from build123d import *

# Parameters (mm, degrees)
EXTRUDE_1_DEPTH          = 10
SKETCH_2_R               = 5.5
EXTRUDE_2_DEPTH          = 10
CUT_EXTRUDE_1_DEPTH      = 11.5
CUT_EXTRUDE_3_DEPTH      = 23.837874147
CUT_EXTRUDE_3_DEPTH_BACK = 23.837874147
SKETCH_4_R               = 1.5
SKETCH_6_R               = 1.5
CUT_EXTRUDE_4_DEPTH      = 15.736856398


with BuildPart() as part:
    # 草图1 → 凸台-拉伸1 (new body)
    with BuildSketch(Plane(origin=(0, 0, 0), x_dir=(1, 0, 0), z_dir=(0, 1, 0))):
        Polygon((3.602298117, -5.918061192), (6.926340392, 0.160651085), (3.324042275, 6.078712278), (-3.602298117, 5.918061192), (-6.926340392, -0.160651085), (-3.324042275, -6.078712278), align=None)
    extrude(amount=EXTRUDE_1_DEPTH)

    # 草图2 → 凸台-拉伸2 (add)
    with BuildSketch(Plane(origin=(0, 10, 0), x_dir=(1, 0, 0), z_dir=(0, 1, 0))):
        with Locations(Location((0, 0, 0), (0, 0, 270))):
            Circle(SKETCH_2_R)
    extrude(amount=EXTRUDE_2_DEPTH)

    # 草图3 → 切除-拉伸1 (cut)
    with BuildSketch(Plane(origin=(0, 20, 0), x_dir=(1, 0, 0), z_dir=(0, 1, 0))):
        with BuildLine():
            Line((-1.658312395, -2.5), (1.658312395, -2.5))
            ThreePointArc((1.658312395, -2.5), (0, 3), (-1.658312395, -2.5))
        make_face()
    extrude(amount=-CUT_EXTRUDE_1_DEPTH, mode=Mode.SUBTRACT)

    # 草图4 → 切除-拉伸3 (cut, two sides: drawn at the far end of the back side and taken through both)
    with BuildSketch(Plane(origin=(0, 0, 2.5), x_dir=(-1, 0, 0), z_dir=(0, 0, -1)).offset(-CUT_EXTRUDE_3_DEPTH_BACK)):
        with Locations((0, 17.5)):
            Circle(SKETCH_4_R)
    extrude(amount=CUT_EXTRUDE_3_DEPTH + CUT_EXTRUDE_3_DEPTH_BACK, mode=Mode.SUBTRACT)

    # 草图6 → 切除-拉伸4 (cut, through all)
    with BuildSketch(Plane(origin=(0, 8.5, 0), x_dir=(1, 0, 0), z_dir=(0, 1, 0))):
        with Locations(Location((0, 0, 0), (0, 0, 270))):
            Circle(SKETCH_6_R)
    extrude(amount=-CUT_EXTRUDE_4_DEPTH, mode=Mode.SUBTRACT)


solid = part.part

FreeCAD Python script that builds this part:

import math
import FreeCAD as App
import Part
import Sketcher
from FreeCAD import Vector


def add_polygon(sketch, points):
    """Adds a closed chain of lines whose ends are joined by coincident constraints."""
    first, n = sketch.GeometryCount, len(points)
    for a, b in zip(points, points[1:] + points[:1]):
        sketch.addGeometry(Part.LineSegment(App.Vector(*a, 0), App.Vector(*b, 0)), False)
    for i in range(n):
        sketch.addConstraint(Sketcher.Constraint("Coincident", first + i, 2, first + (i + 1) % n, 1))

doc = App.newDocument("Part")
params = doc.addObject("Spreadsheet::Sheet", "Params")
for row, (alias, value) in enumerate([
    ("pad1_length", "10 mm"),
    ("sketch2_diameter", "11 mm"),
    ("pad2_length", "10 mm"),
    ("sketch3_radius", "3 mm"),
    ("pocket1_length", "11.5 mm"),
    ("sketch4_diameter", "3 mm"),
    ("sketch5_diameter", "3 mm"),
], start=1):
    params.set(f"A{row}", alias)
    params.set(f"B{row}", "=" + value)
    params.setAlias(f"B{row}", alias)

body = doc.addObject("PartDesign::Body", "Body")

sketch1 = body.newObject("Sketcher::SketchObject", "Sketch")
sketch1.AttachmentSupport = (doc.getObject("XZ_Plane"), [""])
sketch1.MapMode = "FlatFace"
add_polygon(sketch1, [(4, 6), (7, 0), (3, -6), (-4, -6), (-7, 0), (-3, 6)])
sketch1.addConstraint([
    Sketcher.Constraint("Symmetric", 0, 2, 3, 2, -1, 1),
    Sketcher.Constraint("Symmetric", 1, 2, 4, 2, -1, 1),
    Sketcher.Constraint("Symmetric", 2, 2, 5, 2, -1, 1),
    Sketcher.Constraint("Equal", 0, 1),
    Sketcher.Constraint("Equal", 1, 2),
    Sketcher.Constraint("DistanceX", 2, 2, -1, 1, 3.602298),
    Sketcher.Constraint("DistanceX", 1, 2, 0, 2, 3.602298),
    Sketcher.Constraint("DistanceX", -1, 1, 0, 2, 6.92634),
    Sketcher.Constraint("DistanceY", 0, 2, -1, 1, 0.160651),
])
pad1 = body.newObject("PartDesign::Pad", "Pad")
pad1.Profile = sketch1
pad1.setExpression("Length", "Params.pad1_length")
pad1.Reversed = True

sketch2 = body.newObject("Sketcher::SketchObject", "Sketch001")
sketch2.AttachmentSupport = (doc.getObject("XZ_Plane"), [""])
sketch2.MapMode = "FlatFace"
sketch2.AttachmentOffset = App.Placement(Vector(0, 0, -10), App.Rotation())
sketch2.addGeometry(Part.Circle(Vector(0, 0, 0), Vector(0, 0, 1), 6), False)
sketch2.addConstraint([
    Sketcher.Constraint("Coincident", 0, 3, -1, 1),
    Sketcher.Constraint("Diameter", 0, 11.0),
])
sketch2.setExpression("Constraints[1]", "Params.sketch2_diameter")
pad2 = body.newObject("PartDesign::Pad", "Pad001")
pad2.Profile = sketch2
pad2.setExpression("Length", "Params.pad2_length")
pad2.Reversed = True

sketch3 = body.newObject("Sketcher::SketchObject", "Sketch002")
sketch3.AttachmentSupport = (doc.getObject("XZ_Plane"), [""])
sketch3.MapMode = "FlatFace"
sketch3.AttachmentOffset = App.Placement(Vector(0, 0, -20), App.Rotation())
sketch3.addGeometry([
    Part.LineSegment(Vector(-1.7, 2.5, 0), Vector(1.7, 2.5, 0)),
    Part.ArcOfCircle(Part.Circle(Vector(0, 0, 0), Vector(0, 0, 1), 3), math.radians(124), math.radians(416)),
], False)
sketch3.addConstraint([
    Sketcher.Constraint("Coincident", 0, 1, 1, 1),
    Sketcher.Constraint("Coincident", 1, 2, 0, 2),
    Sketcher.Constraint("Horizontal", 0),
    Sketcher.Constraint("Coincident", 1, 3, -1, 1),
    Sketcher.Constraint("Radius", 1, 3.0),
    Sketcher.Constraint("DistanceY", -1, 1, 0, 1, 2.5),
])
sketch3.setExpression("Constraints[4]", "Params.sketch3_radius")
pocket1 = body.newObject("PartDesign::Pocket", "Pocket")
pocket1.Profile = sketch3
pocket1.setExpression("Length", "Params.pocket1_length")
pocket1.Reversed = True

sketch4 = body.newObject("Sketcher::SketchObject", "Sketch003")
sketch4.AttachmentSupport = (doc.getObject("XY_Plane"), [""])
sketch4.MapMode = "FlatFace"
sketch4.AttachmentOffset = App.Placement(Vector(0, 0, 2.5), App.Rotation())
sketch4.addGeometry(Part.Circle(Vector(0, 17.5, 0), Vector(0, 0, 1), 1.5), False)
sketch4.addConstraint([
    Sketcher.Constraint("PointOnObject", 0, 3, -2),
    Sketcher.Constraint("Diameter", 0, 3.0),
    Sketcher.Constraint("DistanceY", -1, 1, 0, 3, 17.5),
])
sketch4.setExpression("Constraints[1]", "Params.sketch4_diameter")
pocket2 = body.newObject("PartDesign::Pocket", "Pocket001")
pocket2.Profile = sketch4
pocket2.Type = "ThroughAll"
pocket2.Midplane = True

sketch5 = body.newObject("Sketcher::SketchObject", "Sketch004")
sketch5.AttachmentSupport = (doc.getObject("XZ_Plane"), [""])
sketch5.MapMode = "FlatFace"
sketch5.AttachmentOffset = App.Placement(Vector(0, 0, -8.5), App.Rotation())
sketch5.addGeometry(Part.Circle(Vector(0, 0, 0), Vector(0, 0, 1), 1.5), False)
sketch5.addConstraint([
    Sketcher.Constraint("Coincident", 0, 3, -1, 1),
    Sketcher.Constraint("Diameter", 0, 3.0),
])
sketch5.setExpression("Constraints[1]", "Params.sketch5_diameter")
pocket3 = body.newObject("PartDesign::Pocket", "Pocket002")
pocket3.Profile = sketch5
pocket3.Type = "ThroughAll"
pocket3.Reversed = True

doc.recompute()
